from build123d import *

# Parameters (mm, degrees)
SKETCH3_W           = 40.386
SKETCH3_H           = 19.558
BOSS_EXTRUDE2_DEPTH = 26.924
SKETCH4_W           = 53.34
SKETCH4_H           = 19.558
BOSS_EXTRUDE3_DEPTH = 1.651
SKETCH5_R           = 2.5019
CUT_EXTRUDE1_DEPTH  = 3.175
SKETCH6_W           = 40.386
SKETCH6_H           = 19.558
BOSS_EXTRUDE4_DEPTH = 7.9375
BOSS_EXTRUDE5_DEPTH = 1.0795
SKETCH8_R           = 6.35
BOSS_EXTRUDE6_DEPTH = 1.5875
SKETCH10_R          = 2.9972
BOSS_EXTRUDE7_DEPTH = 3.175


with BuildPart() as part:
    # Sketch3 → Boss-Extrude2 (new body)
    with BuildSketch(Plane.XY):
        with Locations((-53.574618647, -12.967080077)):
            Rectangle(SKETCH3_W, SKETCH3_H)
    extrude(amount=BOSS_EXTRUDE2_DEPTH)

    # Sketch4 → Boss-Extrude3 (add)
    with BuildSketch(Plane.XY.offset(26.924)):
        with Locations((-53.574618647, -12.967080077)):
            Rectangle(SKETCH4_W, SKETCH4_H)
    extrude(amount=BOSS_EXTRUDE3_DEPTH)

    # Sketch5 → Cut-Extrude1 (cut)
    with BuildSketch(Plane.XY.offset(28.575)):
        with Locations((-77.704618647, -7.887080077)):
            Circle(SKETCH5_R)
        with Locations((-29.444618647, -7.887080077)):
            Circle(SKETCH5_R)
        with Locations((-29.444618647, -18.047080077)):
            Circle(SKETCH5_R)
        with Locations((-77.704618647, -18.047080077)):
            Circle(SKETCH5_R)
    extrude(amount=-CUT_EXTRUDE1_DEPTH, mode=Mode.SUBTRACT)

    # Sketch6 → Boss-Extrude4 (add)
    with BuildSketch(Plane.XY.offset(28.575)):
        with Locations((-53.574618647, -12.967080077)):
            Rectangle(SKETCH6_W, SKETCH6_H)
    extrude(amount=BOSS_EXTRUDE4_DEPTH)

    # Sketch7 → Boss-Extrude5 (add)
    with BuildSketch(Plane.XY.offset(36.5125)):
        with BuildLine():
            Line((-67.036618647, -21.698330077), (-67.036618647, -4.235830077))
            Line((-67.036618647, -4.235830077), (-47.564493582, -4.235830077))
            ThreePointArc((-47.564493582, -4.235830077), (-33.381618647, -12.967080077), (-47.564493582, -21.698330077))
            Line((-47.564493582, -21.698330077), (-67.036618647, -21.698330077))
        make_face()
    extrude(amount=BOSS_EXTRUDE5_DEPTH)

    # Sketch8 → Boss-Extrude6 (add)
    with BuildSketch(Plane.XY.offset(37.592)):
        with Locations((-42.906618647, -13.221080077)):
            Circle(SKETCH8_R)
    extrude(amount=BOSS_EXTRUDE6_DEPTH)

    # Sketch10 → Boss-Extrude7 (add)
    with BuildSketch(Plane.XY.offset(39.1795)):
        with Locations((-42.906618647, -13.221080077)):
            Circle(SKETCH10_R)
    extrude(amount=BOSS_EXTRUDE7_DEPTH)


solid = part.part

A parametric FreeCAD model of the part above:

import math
import FreeCAD as App
import Part
import Sketcher
from FreeCAD import Vector
Q = App.Units.Quantity

doc = App.newDocument("Part")
params = doc.addObject("Spreadsheet::Sheet", "Params")
for row, (alias, value) in enumerate([
    ("sketch1_width", "1.59 in"),
    ("sketch1_height", "0.77 in"),
    ("pad1_length", "1.06 in"),
    ("sketch2_width", "2.1 in"),
    ("sketch2_height", "0.77 in"),
    ("pad2_length", "0.065 in"),
    ("sketch3_diameter", "0.197 in"),
    ("pocket1_length", "0.125 in"),
    ("sketch4_width", "1.59 in"),
    ("sketch4_height", "0.77 in"),
    ("pad3_length", "0.3125 in"),
    ("sketch5_radius", "0.385 in"),
    ("sketch5_height", "0.6875 in"),
    ("pad4_length", "0.0425 in"),
    ("sketch6_diameter", "0.5 in"),
    ("pad5_length", "0.0625 in"),
    ("sketch7_diameter", "0.236 in"),
    ("pad6_length", "0.125 in"),
], start=1):
    params.set(f"A{row}", alias)
    params.set(f"B{row}", "=" + value)
    params.setAlias(f"B{row}", alias)

body = doc.addObject("PartDesign::Body", "Body")

# Sketch on XY plane
sketch1 = doc.addObject("Sketcher::SketchObject", "Sketch")
body.addObject(sketch1)
sketch1.AttachmentSupport = (doc.XY_Plane, [""])
sketch1.MapMode = "FlatFace"
sketch1.addGeometry([
    Part.LineSegment(Vector(-73.767619, -3.18808, 0), Vector(-73.767619, -22.74608, 0)),
    Part.LineSegment(Vector(-73.767619, -22.74608, 0), Vector(-33.381619, -22.74608, 0)),
    Part.LineSegment(Vector(-33.381619, -22.74608, 0), Vector(-33.381619, -3.18808, 0)),
    Part.LineSegment(Vector(-33.381619, -3.18808, 0), Vector(-73.767619, -3.18808, 0)),
], False)
sketch1.addConstraint([
    Sketcher.Constraint("Coincident", 0, 2, 1, 1),
    Sketcher.Constraint("Coincident", 1, 2, 2, 1),
    Sketcher.Constraint("Coincident", 2, 2, 3, 1),
    Sketcher.Constraint("Coincident", 3, 2, 0, 1),
    Sketcher.Constraint("Vertical", 0),
    Sketcher.Constraint("Horizontal", 1),
    Sketcher.Constraint("Vertical", 2),
    Sketcher.Constraint("Horizontal", 3),
    Sketcher.Constraint("DistanceX", 1, 1, 1, 2, Q("1.59 in")),
    Sketcher.Constraint("DistanceY", 0, 2, 0, 1, Q("0.77 in")),
    Sketcher.Constraint("DistanceX", 0, 2, -1, 1, Q("73.767619 mm")),
    Sketcher.Constraint("DistanceY", 0, 2, -1, 1, Q("22.74608 mm")),
])
sketch1.setExpression("Constraints[8]", "Params.sketch1_width")
sketch1.setExpression("Constraints[9]", "Params.sketch1_height")
pad1 = doc.addObject("PartDesign::Pad", "Pad")
body.addObject(pad1)
pad1.Profile = sketch1
pad1.setExpression("Length", "Params.pad1_length")

# Sketch on XY plane
sketch2 = doc.addObject("Sketcher::SketchObject", "Sketch001")
body.addObject(sketch2)
sketch2.AttachmentSupport = (doc.XY_Plane, [""])
sketch2.MapMode = "FlatFace"
sketch2.AttachmentOffset = App.Placement(Vector(0, 0, 1.06 * 25.4), App.Rotation())
sketch2.addGeometry([
    Part.LineSegment(Vector(-80.244619, -3.18808, 0), Vector(-80.244619, -22.74608, 0)),
    Part.LineSegment(Vector(-80.244619, -22.74608, 0), Vector(-26.904619, -22.74608, 0)),
    Part.LineSegment(Vector(-26.904619, -22.74608, 0), Vector(-26.904619, -3.18808, 0)),
    Part.LineSegment(Vector(-26.904619, -3.18808, 0), Vector(-80.244619, -3.18808, 0)),
], False)
sketch2.addConstraint([
    Sketcher.Constraint("Coincident", 0, 2, 1, 1),
    Sketcher.Constraint("Coincident", 1, 2, 2, 1),
    Sketcher.Constraint("Coincident", 2, 2, 3, 1),
    Sketcher.Constraint("Coincident", 3, 2, 0, 1),
    Sketcher.Constraint("Vertical", 0),
    Sketcher.Constraint("Horizontal", 1),
    Sketcher.Constraint("Vertical", 2),
    Sketcher.Constraint("Horizontal", 3),
    Sketcher.Constraint("DistanceX", 1, 1, 1, 2, Q("2.1 in")),
    Sketcher.Constraint("DistanceY", 0, 2, 0, 1, Q("0.77 in")),
    Sketcher.Constraint("DistanceX", 0, 2, -1, 1, Q("80.244619 mm")),
    Sketcher.Constraint("DistanceY", 0, 2, -1, 1, Q("22.74608 mm")),
])
sketch2.setExpression("Constraints[8]", "Params.sketch2_width")
sketch2.setExpression("Constraints[9]", "Params.sketch2_height")
pad2 = doc.addObject("PartDesign::Pad", "Pad001")
body.addObject(pad2)
pad2.Profile = sketch2
pad2.setExpression("Length", "Params.pad2_length")

# Sketch on XY plane
sketch3 = doc.addObject("Sketcher::SketchObject", "Sketch002")
body.addObject(sketch3)
sketch3.AttachmentSupport = (doc.XY_Plane, [""])
sketch3.MapMode = "FlatFace"
sketch3.AttachmentOffset = App.Placement(Vector(0, 0, 1.125 * 25.4), App.Rotation())
sketch3.addGeometry([
    Part.Circle(Vector(-77.704619, -7.88708, 0), Vector(0, 0, 1), 2.5019),
    Part.Circle(Vector(-29.444619, -7.88708, 0), Vector(0, 0, 1), 2.5019),
    Part.Circle(Vector(-29.444619, -18.04708, 0), Vector(0, 0, 1), 2.5019),
    Part.Circle(Vector(-77.704619, -18.04708, 0), Vector(0, 0, 1), 2.5019),
], False)
sketch3.addConstraint([
    Sketcher.Constraint("Equal", 0, 1),
    Sketcher.Constraint("Equal", 1, 2),
    Sketcher.Constraint("Equal", 2, 3),
    Sketcher.Constraint("Horizontal", 0, 3, 1, 3),
    Sketcher.Constraint("Horizontal", 2, 3, 3, 3),
    Sketcher.Constraint("Vertical", 1, 3, 2, 3),
    Sketcher.Constraint("Vertical", 0, 3, 3, 3),
    Sketcher.Constraint("Diameter", 0, Q("0.197 in")),
    Sketcher.Constraint("DistanceX", 0, 3, 1, 3, Q("1.9 in")),
    Sketcher.Constraint("DistanceY", 2, 3, 1, 3, Q("0.4 in")),
    Sketcher.Constraint("DistanceX", 0, 3, -1, 1, Q("77.704619 mm")),
    Sketcher.Constraint("DistanceY", 0, 3, -1, 1, Q("7.88708 mm")),
])
sketch3.setExpression("Constraints[7]", "Params.sketch3_diameter")
pocket1 = doc.addObject("PartDesign::Pocket", "Pocket")
body.addObject(pocket1)
pocket1.Profile = sketch3
pocket1.setExpression("Length", "Params.pocket1_length")

# Sketch on XY plane
sketch4 = doc.addObject("Sketcher::SketchObject", "Sketch003")
body.addObject(sketch4)
sketch4.AttachmentSupport = (doc.XY_Plane, [""])
sketch4.MapMode = "FlatFace"
sketch4.AttachmentOffset = App.Placement(Vector(0, 0, 1.125 * 25.4), App.Rotation())
sketch4.addGeometry([
    Part.LineSegment(Vector(-73.767619, -3.18808, 0), Vector(-73.767619, -22.74608, 0)),
    Part.LineSegment(Vector(-73.767619, -22.74608, 0), Vector(-33.381619, -22.74608, 0)),
    Part.LineSegment(Vector(-33.381619, -22.74608, 0), Vector(-33.381619, -3.18808, 0)),
    Part.LineSegment(Vector(-33.381619, -3.18808, 0), Vector(-73.767619, -3.18808, 0)),
], False)
sketch4.addConstraint([
    Sketcher.Constraint("Coincident", 0, 2, 1, 1),
    Sketcher.Constraint("Coincident", 1, 2, 2, 1),
    Sketcher.Constraint("Coincident", 2, 2, 3, 1),
    Sketcher.Constraint("Coincident", 3, 2, 0, 1),
    Sketcher.Constraint("Vertical", 0),
    Sketcher.Constraint("Horizontal", 1),
    Sketcher.Constraint("Vertical", 2),
    Sketcher.Constraint("Horizontal", 3),
    Sketcher.Constraint("DistanceX", 1, 1, 1, 2, Q("1.59 in")),
    Sketcher.Constraint("DistanceY", 0, 2, 0, 1, Q("0.77 in")),
    Sketcher.Constraint("DistanceX", 0, 2, -1, 1, Q("73.767619 mm")),
    Sketcher.Constraint("DistanceY", 0, 2, -1, 1, Q("22.74608 mm")),
])
sketch4.setExpression("Constraints[8]", "Params.sketch4_width")
sketch4.setExpression("Constraints[9]", "Params.sketch4_height")
pad3 = doc.addObject("PartDesign::Pad", "Pad002")
body.addObject(pad3)
pad3.Profile = sketch4
pad3.setExpression("Length", "Params.pad3_length")

# Sketch on XY plane
sketch5 = doc.addObject("Sketcher::SketchObject", "Sketch004")
body.addObject(sketch5)
sketch5.AttachmentSupport = (doc.XY_Plane, [""])
sketch5.MapMode = "FlatFace"
sketch5.AttachmentOffset = App.Placement(Vector(0, 0, 1.4375 * 25.4), App.Rotation())
sketch5.addGeometry([
    Part.LineSegment(Vector(-67.036619, -4.23583, 0), Vector(-67.036619, -21.69833, 0)),
    Part.LineSegment(Vector(-67.036619, -21.69833, 0), Vector(-47.564494, -21.69833, 0)),
    Part.ArcOfCircle(Part.Circle(Vector(-43.160619, -12.96708, 0), Vector(0, 0, 1), 9.779), math.radians(-116.765501), math.radians(116.765501)),
    Part.LineSegment(Vector(-47.564494, -4.23583, 0), Vector(-67.036619, -4.23583, 0)),
], False)
sketch5.addConstraint([
    Sketcher.Constraint("Coincident", 0, 2, 1, 1),
    Sketcher.Constraint("Coincident", 1, 2, 2, 1),
    Sketcher.Constraint("Coincident", 2, 2, 3, 1),
    Sketcher.Constraint("Coincident", 3, 2, 0, 1),
    Sketcher.Constraint("Vertical", 0),
    Sketcher.Constraint("Horizontal", 1),
    Sketcher.Constraint("Horizontal", 3),
    Sketcher.Constraint("Vertical", 1, 2, 2, 2),
    Sketcher.Constraint("Radius", 2, Q("0.385 in")),
    Sketcher.Constraint("DistanceY", 0, 2, 0, 1, Q("0.6875 in")),
    Sketcher.Constraint("DistanceX", 0, 2, 2, 3, Q("0.94 in")),
    Sketcher.Constraint("DistanceX", 2, 3, -1, 1, Q("43.160619 mm")),
    Sketcher.Constraint("DistanceY", 2, 3, -1, 1, Q("12.96708 mm")),
])
sketch5.setExpression("Constraints[8]", "Params.sketch5_radius")
sketch5.setExpression("Constraints[9]", "Params.sketch5_height")
pad4 = doc.addObject("PartDesign::Pad", "Pad003")
body.addObject(pad4)
pad4.Profile = sketch5
pad4.setExpression("Length", "Params.pad4_length")

# Sketch on XY plane
sketch6 = doc.addObject("Sketcher::SketchObject", "Sketch005")
body.addObject(sketch6)
sketch6.AttachmentSupport = (doc.XY_Plane, [""])
sketch6.MapMode = "FlatFace"
sketch6.AttachmentOffset = App.Placement(Vector(0, 0, 1.48 * 25.4), App.Rotation())
sketch6.addGeometry(Part.Circle(Vector(-42.906619, -13.22108, 0), Vector(0, 0, 1), 6.35), False)
sketch6.addConstraint([
    Sketcher.Constraint("Diameter", 0, Q("0.5 in")),
    Sketcher.Constraint("DistanceX", 0, 3, -1, 1, Q("42.906619 mm")),
    Sketcher.Constraint("DistanceY", 0, 3, -1, 1, Q("13.22108 mm")),
])
sketch6.setExpression("Constraints[0]", "Params.sketch6_diameter")
pad5 = doc.addObject("PartDesign::Pad", "Pad004")
body.addObject(pad5)
pad5.Profile = sketch6
pad5.setExpression("Length", "Params.pad5_length")

# Sketch on XY plane
sketch7 = doc.addObject("Sketcher::SketchObject", "Sketch006")
body.addObject(sketch7)
sketch7.AttachmentSupport = (doc.XY_Plane, [""])
sketch7.MapMode = "FlatFace"
sketch7.AttachmentOffset = App.Placement(Vector(0, 0, 1.5425 * 25.4), App.Rotation())
sketch7.addGeometry(Part.Circle(Vector(-42.906619, -13.22108, 0), Vector(0, 0, 1), 2.9972), False)
sketch7.addConstraint([
    Sketcher.Constraint("Diameter", 0, Q("0.236 in")),
    Sketcher.Constraint("DistanceX", 0, 3, -1, 1, Q("42.906619 mm")),
    Sketcher.Constraint("DistanceY", 0, 3, -1, 1, Q("13.22108 mm")),
])
sketch7.setExpression("Constraints[0]", "Params.sketch7_diameter")
pad6 = doc.addObject("PartDesign::Pad", "Pad005")
body.addObject(pad6)
pad6.Profile = sketch7
pad6.setExpression("Length", "Params.pad6_length")

doc.recompute()
